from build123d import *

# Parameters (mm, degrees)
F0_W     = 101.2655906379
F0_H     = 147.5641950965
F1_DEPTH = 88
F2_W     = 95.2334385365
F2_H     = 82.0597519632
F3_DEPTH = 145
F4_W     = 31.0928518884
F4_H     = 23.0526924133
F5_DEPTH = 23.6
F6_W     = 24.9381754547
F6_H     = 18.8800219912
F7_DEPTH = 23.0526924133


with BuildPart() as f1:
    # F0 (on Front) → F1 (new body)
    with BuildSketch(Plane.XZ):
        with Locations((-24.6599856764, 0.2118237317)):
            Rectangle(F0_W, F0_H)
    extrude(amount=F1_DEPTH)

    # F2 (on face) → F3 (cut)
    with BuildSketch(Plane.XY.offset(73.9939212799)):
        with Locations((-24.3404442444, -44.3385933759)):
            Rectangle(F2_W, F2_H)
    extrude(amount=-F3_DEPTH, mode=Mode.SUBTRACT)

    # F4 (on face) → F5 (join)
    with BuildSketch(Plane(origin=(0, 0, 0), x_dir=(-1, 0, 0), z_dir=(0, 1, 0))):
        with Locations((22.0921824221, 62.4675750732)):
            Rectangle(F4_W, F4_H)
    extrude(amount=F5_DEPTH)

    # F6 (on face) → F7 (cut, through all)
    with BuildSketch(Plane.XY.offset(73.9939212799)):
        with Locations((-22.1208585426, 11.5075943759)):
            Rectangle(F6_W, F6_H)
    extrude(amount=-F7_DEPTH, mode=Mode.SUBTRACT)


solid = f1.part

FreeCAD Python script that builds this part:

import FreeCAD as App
import Part
import Sketcher
Q = App.Units.Quantity

doc = App.newDocument("Part")
body = doc.addObject("PartDesign::Body", "Body")

# Sketch on XZ plane
sketch1 = doc.addObject("Sketcher::SketchObject", "Sketch")
body.addObject(sketch1)
sketch1.AttachmentSupport = (doc.XZ_Plane, [""])
sketch1.MapMode = "FlatFace"
sketch1.addGeometry(Part.LineSegment(App.Vector(-75, 74, 0), App.Vector(-75, -74, 0)), False)
sketch1.addGeometry(Part.LineSegment(App.Vector(-75, -74, 0), App.Vector(26, -74, 0)), False)
sketch1.addGeometry(Part.LineSegment(App.Vector(26, -74, 0), App.Vector(26, 74, 0)), False)
sketch1.addGeometry(Part.LineSegment(App.Vector(26, 74, 0), App.Vector(-75, 74, 0)), False)
sketch1.addConstraint(Sketcher.Constraint("Coincident", 0, 2, 1, 1))
sketch1.addConstraint(Sketcher.Constraint("Coincident", 1, 2, 2, 1))
sketch1.addConstraint(Sketcher.Constraint("Coincident", 2, 2, 3, 1))
sketch1.addConstraint(Sketcher.Constraint("Coincident", 3, 2, 0, 1))
sketch1.addConstraint(Sketcher.Constraint("Vertical", 0))
sketch1.addConstraint(Sketcher.Constraint("Horizontal", 1))
sketch1.addConstraint(Sketcher.Constraint("Vertical", 2))
sketch1.addConstraint(Sketcher.Constraint("Horizontal", 3))
sketch1.addConstraint(Sketcher.Constraint("DistanceX", 1, 1, 1, 2, Q("101.265591 mm")))
sketch1.addConstraint(Sketcher.Constraint("DistanceY", 0, 2, 0, 1, Q("147.564195 mm")))
sketch1.addConstraint(Sketcher.Constraint("DistanceX", 0, 2, -1, 1, Q("75.292781 mm")))
sketch1.addConstraint(Sketcher.Constraint("DistanceY", -1, 1, 2, 2, Q("73.993921 mm")))
pad1 = doc.addObject("PartDesign::Pad", "Pad")
body.addObject(pad1)
pad1.Profile = sketch1
pad1.Length = 88

# Sketch on XY plane
sketch2 = doc.addObject("Sketcher::SketchObject", "Sketch001")
body.addObject(sketch2)
sketch2.AttachmentSupport = (doc.XY_Plane, [""])
sketch2.MapMode = "FlatFace"
sketch2.AttachmentOffset = App.Placement(App.Vector(0, 0, 73.993921), App.Rotation())
sketch2.addGeometry(Part.LineSegment(App.Vector(-72, -3, 0), App.Vector(-72, -85, 0)), False)
sketch2.addGeometry(Part.LineSegment(App.Vector(-72, -85, 0), App.Vector(23, -85, 0)), False)
sketch2.addGeometry(Part.LineSegment(App.Vector(23, -85, 0), App.Vector(23, -3, 0)), False)
sketch2.addGeometry(Part.LineSegment(App.Vector(23, -3, 0), App.Vector(-72, -3, 0)), False)
sketch2.addConstraint(Sketcher.Constraint("Coincident", 0, 2, 1, 1))
sketch2.addConstraint(Sketcher.Constraint("Coincident", 1, 2, 2, 1))
sketch2.addConstraint(Sketcher.Constraint("Coincident", 2, 2, 3, 1))
sketch2.addConstraint(Sketcher.Constraint("Coincident", 3, 2, 0, 1))
sketch2.addConstraint(Sketcher.Constraint("Vertical", 0))
sketch2.addConstraint(Sketcher.Constraint("Horizontal", 1))
sketch2.addConstraint(Sketcher.Constraint("Vertical", 2))
sketch2.addConstraint(Sketcher.Constraint("Horizontal", 3))
sketch2.addConstraint(Sketcher.Constraint("DistanceX", 1, 1, 1, 2, Q("95.233439 mm")))
sketch2.addConstraint(Sketcher.Constraint("DistanceY", 0, 2, 0, 1, Q("82.059752 mm")))
sketch2.addConstraint(Sketcher.Constraint("DistanceY", 0, 2, -1, 1, Q("85.368469 mm")))
sketch2.addConstraint(Sketcher.Constraint("DistanceX", 0, 2, -1, 1, Q("71.957164 mm")))
pocket1 = doc.addObject("PartDesign::Pocket", "Pocket")
body.addObject(pocket1)
pocket1.Profile = sketch2
pocket1.Length = 145

# Sketch on XZ plane
sketch3 = doc.addObject("Sketcher::SketchObject", "Sketch002")
body.addObject(sketch3)
sketch3.AttachmentSupport = (doc.XZ_Plane, [""])
sketch3.MapMode = "FlatFace"
sketch3.addGeometry(Part.LineSegment(App.Vector(-7, 74, 0), App.Vector(-7, 51, 0)), False)
sketch3.addGeometry(Part.LineSegment(App.Vector(-7, 51, 0), App.Vector(-38, 51, 0)), False)
sketch3.addGeometry(Part.LineSegment(App.Vector(-38, 51, 0), App.Vector(-38, 74, 0)), False)
sketch3.addGeometry(Part.LineSegment(App.Vector(-38, 74, 0), App.Vector(-7, 74, 0)), False)
sketch3.addConstraint(Sketcher.Constraint("Coincident", 0, 2, 1, 1))
sketch3.addConstraint(Sketcher.Constraint("Coincident", 1, 2, 2, 1))
sketch3.addConstraint(Sketcher.Constraint("Coincident", 2, 2, 3, 1))
sketch3.addConstraint(Sketcher.Constraint("Coincident", 3, 2, 0, 1))
sketch3.addConstraint(Sketcher.Constraint("Vertical", 0))
sketch3.addConstraint(Sketcher.Constraint("Horizontal", 1))
sketch3.addConstraint(Sketcher.Constraint("Vertical", 2))
sketch3.addConstraint(Sketcher.Constraint("Horizontal", 3))
sketch3.addConstraint(Sketcher.Constraint("DistanceX", 1, 2, 1, 1, Q("31.092852 mm")))
sketch3.addConstraint(Sketcher.Constraint("DistanceY", 0, 2, 0, 1, Q("23.052692 mm")))
sketch3.addConstraint(Sketcher.Constraint("DistanceY", -1, 1, 0, 2, Q("50.941229 mm")))
sketch3.addConstraint(Sketcher.Constraint("DistanceX", 1, 2, -1, 1, Q("37.638608 mm")))
pad2 = doc.addObject("PartDesign::Pad", "Pad001")
body.addObject(pad2)
pad2.Profile = sketch3
pad2.Length = 23.6
pad2.Reversed = True

# Sketch on XY plane
sketch4 = doc.addObject("Sketcher::SketchObject", "Sketch003")
body.addObject(sketch4)
sketch4.AttachmentSupport = (doc.XY_Plane, [""])
sketch4.MapMode = "FlatFace"
sketch4.AttachmentOffset = App.Placement(App.Vector(0, 0, 73.993921), App.Rotation())
sketch4.addGeometry(Part.LineSegment(App.Vector(-35, 21, 0), App.Vector(-35, 2, 0)), False)
sketch4.addGeometry(Part.LineSegment(App.Vector(-35, 2, 0), App.Vector(-10, 2, 0)), False)
sketch4.addGeometry(Part.LineSegment(App.Vector(-10, 2, 0), App.Vector(-10, 21, 0)), False)
sketch4.addGeometry(Part.LineSegment(App.Vector(-10, 21, 0), App.Vector(-35, 21, 0)), False)
sketch4.addConstraint(Sketcher.Constraint("Coincident", 0, 2, 1, 1))
sketch4.addConstraint(Sketcher.Constraint("Coincident", 1, 2, 2, 1))
sketch4.addConstraint(Sketcher.Constraint("Coincident", 2, 2, 3, 1))
sketch4.addConstraint(Sketcher.Constraint("Coincident", 3, 2, 0, 1))
sketch4.addConstraint(Sketcher.Constraint("Vertical", 0))
sketch4.addConstraint(Sketcher.Constraint("Horizontal", 1))
sketch4.addConstraint(Sketcher.Constraint("Vertical", 2))
sketch4.addConstraint(Sketcher.Constraint("Horizontal", 3))
sketch4.addConstraint(Sketcher.Constraint("DistanceY", 0, 2, 0, 1, Q("18.880022 mm")))
sketch4.addConstraint(Sketcher.Constraint("DistanceX", 1, 1, 1, 2, Q("24.938175 mm")))
sketch4.addConstraint(Sketcher.Constraint("DistanceX", 1, 2, -1, 1, Q("9.651771 mm")))
sketch4.addConstraint(Sketcher.Constraint("DistanceY", -1, 1, 0, 2, Q("2.067583 mm")))
pocket2 = doc.addObject("PartDesign::Pocket", "Pocket001")
body.addObject(pocket2)
pocket2.Profile = sketch4
pocket2.Type = "ThroughAll"

doc.recompute()
